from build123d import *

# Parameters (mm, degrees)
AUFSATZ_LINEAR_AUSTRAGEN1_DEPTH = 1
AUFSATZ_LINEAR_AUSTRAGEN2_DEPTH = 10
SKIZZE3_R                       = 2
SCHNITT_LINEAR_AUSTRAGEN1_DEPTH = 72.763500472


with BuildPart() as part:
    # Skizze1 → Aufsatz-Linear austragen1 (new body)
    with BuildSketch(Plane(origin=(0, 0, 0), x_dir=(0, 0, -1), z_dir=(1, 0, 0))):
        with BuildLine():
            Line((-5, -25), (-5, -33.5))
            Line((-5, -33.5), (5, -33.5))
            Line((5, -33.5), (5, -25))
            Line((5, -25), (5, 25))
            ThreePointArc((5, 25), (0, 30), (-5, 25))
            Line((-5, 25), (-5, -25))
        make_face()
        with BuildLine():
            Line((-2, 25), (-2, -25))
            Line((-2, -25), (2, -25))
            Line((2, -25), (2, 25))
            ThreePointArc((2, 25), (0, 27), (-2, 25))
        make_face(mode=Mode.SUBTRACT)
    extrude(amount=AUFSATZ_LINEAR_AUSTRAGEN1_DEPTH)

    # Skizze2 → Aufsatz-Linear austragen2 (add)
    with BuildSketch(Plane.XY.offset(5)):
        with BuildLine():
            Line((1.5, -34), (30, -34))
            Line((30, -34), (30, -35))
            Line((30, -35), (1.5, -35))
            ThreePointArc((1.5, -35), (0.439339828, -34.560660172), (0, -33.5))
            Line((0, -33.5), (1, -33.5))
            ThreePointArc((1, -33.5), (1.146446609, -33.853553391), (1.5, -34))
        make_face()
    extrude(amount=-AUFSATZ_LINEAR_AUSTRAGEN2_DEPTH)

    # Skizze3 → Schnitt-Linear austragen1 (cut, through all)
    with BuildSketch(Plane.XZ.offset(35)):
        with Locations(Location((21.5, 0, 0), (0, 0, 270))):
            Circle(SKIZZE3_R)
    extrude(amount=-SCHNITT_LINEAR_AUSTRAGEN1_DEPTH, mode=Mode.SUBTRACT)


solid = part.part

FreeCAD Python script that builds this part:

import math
import FreeCAD as App
import Part
import Sketcher

V = App.Vector
Q = App.Units.Quantity

doc = App.newDocument("Part")
params = doc.addObject("Spreadsheet::Sheet", "Params")
for row, (alias, value) in enumerate([
    ("sketch1_radius", "5 mm"),
    ("sketch1_radius2", "2 mm"),
    ("sketch1_width", "50 mm"),
    ("sketch1_width2", "58.5 mm"),
    ("pad1_length", "1 mm"),
    ("sketch2_radius", "0.5 mm"),
    ("sketch2_radius2", "1.5 mm"),
    ("sketch2_width", "28.5 mm"),
    ("pad2_length", "10 mm"),
    ("sketch3_diameter", "4 mm"),
], start=1):
    params.set(f"A{row}", alias)
    params.set(f"B{row}", "=" + value)
    params.setAlias(f"B{row}", alias)

body = doc.addObject("PartDesign::Body", "Body")

sketch1 = body.newObject("Sketcher::SketchObject", "Sketch")
sketch1.AttachmentSupport = (doc.getObject("YZ_Plane"), [""])
sketch1.MapMode = "FlatFace"
sketch1.addGeometry([
    Part.LineSegment(V(-33.5, 5, 0), V(-33.5, -5, 0)),
    Part.LineSegment(V(-33.5, -5, 0), V(25, -5, 0)),
    Part.ArcOfCircle(Part.Circle(V(25, 0, 0), V(0, 0, 1), 5), math.radians(-90), math.radians(90)),
    Part.LineSegment(V(25, 5, 0), V(-33.5, 5, 0)),
    Part.LineSegment(V(-25, 2, 0), V(25, 2, 0)),
    Part.ArcOfCircle(Part.Circle(V(25, 0, 0), V(0, 0, 1), 2), math.radians(-90), math.radians(90)),
    Part.LineSegment(V(25, -2, 0), V(-25, -2, 0)),
    Part.LineSegment(V(-25, -2, 0), V(-25, 2, 0)),
], False)
sketch1.addConstraint([
    Sketcher.Constraint("Coincident", 0, 2, 1, 1),
    Sketcher.Constraint("Tangent", 1, 2, 2, 1),
    Sketcher.Constraint("Tangent", 2, 2, 3, 1),
    Sketcher.Constraint("Coincident", 3, 2, 0, 1),
    Sketcher.Constraint("Tangent", 4, 2, 5, 2),
    Sketcher.Constraint("Tangent", 5, 1, 6, 1),
    Sketcher.Constraint("Coincident", 6, 2, 7, 1),
    Sketcher.Constraint("Coincident", 7, 2, 4, 1),
    Sketcher.Constraint("Vertical", 0),
    Sketcher.Constraint("Horizontal", 1),
    Sketcher.Constraint("Horizontal", 3),
    Sketcher.Constraint("Horizontal", 4),
    Sketcher.Constraint("Horizontal", 6),
    Sketcher.Constraint("Vertical", 7),
    Sketcher.Constraint("Coincident", 5, 3, 2, 3),
    Sketcher.Constraint("Symmetric", 4, 2, 6, 2, -1, 1),
    Sketcher.Constraint("Radius", 2, Q("5 mm")),
    Sketcher.Constraint("Radius", 5, Q("2 mm")),
    Sketcher.Constraint("DistanceX", 4, 1, 4, 2, Q("50 mm")),
    Sketcher.Constraint("DistanceX", 1, 1, 1, 2, Q("58.5 mm")),
])
sketch1.setExpression("Constraints[16]", "Params.sketch1_radius")
sketch1.setExpression("Constraints[17]", "Params.sketch1_radius2")
sketch1.setExpression("Constraints[18]", "Params.sketch1_width")
sketch1.setExpression("Constraints[19]", "Params.sketch1_width2")
pad1 = body.newObject("PartDesign::Pad", "Pad")
pad1.Profile = sketch1
pad1.setExpression("Length", "Params.pad1_length")

sketch2 = body.newObject("Sketcher::SketchObject", "Sketch001")
sketch2.AttachmentSupport = (doc.getObject("XY_Plane"), [""])
sketch2.MapMode = "FlatFace"
sketch2.AttachmentOffset = App.Placement(V(0, 0, 5), App.Rotation())
sketch2.addGeometry([
    Part.LineSegment(V(30, -34, 0), V(1.5, -34, 0)),
    Part.ArcOfCircle(Part.Circle(V(1.5, -33.5, 0), V(0, 0, 1), 0.5), math.radians(180), math.radians(270)),
    Part.LineSegment(V(1, -33.5, 0), V(0, -33.5, 0)),
    Part.ArcOfCircle(Part.Circle(V(1.5, -33.5, 0), V(0, 0, 1), 1.5), math.radians(180), math.radians(270)),
    Part.LineSegment(V(1.5, -35, 0), V(30, -35, 0)),
    Part.LineSegment(V(30, -35, 0), V(30, -34, 0)),
], False)
sketch2.addConstraint([
    Sketcher.Constraint("Tangent", 0, 2, 1, 2),
    Sketcher.Constraint("Coincident", 1, 1, 2, 1),
    Sketcher.Constraint("Coincident", 2, 2, 3, 1),
    Sketcher.Constraint("Tangent", 3, 2, 4, 1),
    Sketcher.Constraint("Coincident", 4, 2, 5, 1),
    Sketcher.Constraint("Coincident", 5, 2, 0, 1),
    Sketcher.Constraint("Horizontal", 0),
    Sketcher.Constraint("Horizontal", 2),
    Sketcher.Constraint("Horizontal", 4),
    Sketcher.Constraint("Vertical", 5),
    Sketcher.Constraint("Coincident", 3, 3, 1, 3),
    Sketcher.Constraint("PointOnObject", 2, 2, -2),
    Sketcher.Constraint("Horizontal", 3, 3, 1, 1),
    Sketcher.Constraint("Radius", 1, Q("0.5 mm")),
    Sketcher.Constraint("Radius", 3, Q("1.5 mm")),
    Sketcher.Constraint("DistanceX", 0, 2, 0, 1, Q("28.5 mm")),
    Sketcher.Constraint("DistanceY", 0, 2, -1, 1, Q("34 mm")),
])
sketch2.setExpression("Constraints[13]", "Params.sketch2_radius")
sketch2.setExpression("Constraints[14]", "Params.sketch2_radius2")
sketch2.setExpression("Constraints[15]", "Params.sketch2_width")
pad2 = body.newObject("PartDesign::Pad", "Pad001")
pad2.Profile = sketch2
pad2.setExpression("Length", "Params.pad2_length")
pad2.Reversed = True

sketch3 = body.newObject("Sketcher::SketchObject", "Sketch002")
sketch3.AttachmentSupport = (doc.getObject("XZ_Plane"), [""])
sketch3.MapMode = "FlatFace"
sketch3.AttachmentOffset = App.Placement(V(0, 0, 35), App.Rotation())
sketch3.addGeometry(Part.Circle(V(21.5, 0, 0), V(0, 0, 1), 2), False)
sketch3.addConstraint([
    Sketcher.Constraint("PointOnObject", 0, 3, -1),
    Sketcher.Constraint("Diameter", 0, Q("4 mm")),
    Sketcher.Constraint("DistanceX", -1, 1, 0, 3, Q("21.5 mm")),
])
sketch3.setExpression("Constraints[1]", "Params.sketch3_diameter")
pocket1 = body.newObject("PartDesign::Pocket", "Pocket")
pocket1.Profile = sketch3
pocket1.Type = "ThroughAll"

doc.recompute()
